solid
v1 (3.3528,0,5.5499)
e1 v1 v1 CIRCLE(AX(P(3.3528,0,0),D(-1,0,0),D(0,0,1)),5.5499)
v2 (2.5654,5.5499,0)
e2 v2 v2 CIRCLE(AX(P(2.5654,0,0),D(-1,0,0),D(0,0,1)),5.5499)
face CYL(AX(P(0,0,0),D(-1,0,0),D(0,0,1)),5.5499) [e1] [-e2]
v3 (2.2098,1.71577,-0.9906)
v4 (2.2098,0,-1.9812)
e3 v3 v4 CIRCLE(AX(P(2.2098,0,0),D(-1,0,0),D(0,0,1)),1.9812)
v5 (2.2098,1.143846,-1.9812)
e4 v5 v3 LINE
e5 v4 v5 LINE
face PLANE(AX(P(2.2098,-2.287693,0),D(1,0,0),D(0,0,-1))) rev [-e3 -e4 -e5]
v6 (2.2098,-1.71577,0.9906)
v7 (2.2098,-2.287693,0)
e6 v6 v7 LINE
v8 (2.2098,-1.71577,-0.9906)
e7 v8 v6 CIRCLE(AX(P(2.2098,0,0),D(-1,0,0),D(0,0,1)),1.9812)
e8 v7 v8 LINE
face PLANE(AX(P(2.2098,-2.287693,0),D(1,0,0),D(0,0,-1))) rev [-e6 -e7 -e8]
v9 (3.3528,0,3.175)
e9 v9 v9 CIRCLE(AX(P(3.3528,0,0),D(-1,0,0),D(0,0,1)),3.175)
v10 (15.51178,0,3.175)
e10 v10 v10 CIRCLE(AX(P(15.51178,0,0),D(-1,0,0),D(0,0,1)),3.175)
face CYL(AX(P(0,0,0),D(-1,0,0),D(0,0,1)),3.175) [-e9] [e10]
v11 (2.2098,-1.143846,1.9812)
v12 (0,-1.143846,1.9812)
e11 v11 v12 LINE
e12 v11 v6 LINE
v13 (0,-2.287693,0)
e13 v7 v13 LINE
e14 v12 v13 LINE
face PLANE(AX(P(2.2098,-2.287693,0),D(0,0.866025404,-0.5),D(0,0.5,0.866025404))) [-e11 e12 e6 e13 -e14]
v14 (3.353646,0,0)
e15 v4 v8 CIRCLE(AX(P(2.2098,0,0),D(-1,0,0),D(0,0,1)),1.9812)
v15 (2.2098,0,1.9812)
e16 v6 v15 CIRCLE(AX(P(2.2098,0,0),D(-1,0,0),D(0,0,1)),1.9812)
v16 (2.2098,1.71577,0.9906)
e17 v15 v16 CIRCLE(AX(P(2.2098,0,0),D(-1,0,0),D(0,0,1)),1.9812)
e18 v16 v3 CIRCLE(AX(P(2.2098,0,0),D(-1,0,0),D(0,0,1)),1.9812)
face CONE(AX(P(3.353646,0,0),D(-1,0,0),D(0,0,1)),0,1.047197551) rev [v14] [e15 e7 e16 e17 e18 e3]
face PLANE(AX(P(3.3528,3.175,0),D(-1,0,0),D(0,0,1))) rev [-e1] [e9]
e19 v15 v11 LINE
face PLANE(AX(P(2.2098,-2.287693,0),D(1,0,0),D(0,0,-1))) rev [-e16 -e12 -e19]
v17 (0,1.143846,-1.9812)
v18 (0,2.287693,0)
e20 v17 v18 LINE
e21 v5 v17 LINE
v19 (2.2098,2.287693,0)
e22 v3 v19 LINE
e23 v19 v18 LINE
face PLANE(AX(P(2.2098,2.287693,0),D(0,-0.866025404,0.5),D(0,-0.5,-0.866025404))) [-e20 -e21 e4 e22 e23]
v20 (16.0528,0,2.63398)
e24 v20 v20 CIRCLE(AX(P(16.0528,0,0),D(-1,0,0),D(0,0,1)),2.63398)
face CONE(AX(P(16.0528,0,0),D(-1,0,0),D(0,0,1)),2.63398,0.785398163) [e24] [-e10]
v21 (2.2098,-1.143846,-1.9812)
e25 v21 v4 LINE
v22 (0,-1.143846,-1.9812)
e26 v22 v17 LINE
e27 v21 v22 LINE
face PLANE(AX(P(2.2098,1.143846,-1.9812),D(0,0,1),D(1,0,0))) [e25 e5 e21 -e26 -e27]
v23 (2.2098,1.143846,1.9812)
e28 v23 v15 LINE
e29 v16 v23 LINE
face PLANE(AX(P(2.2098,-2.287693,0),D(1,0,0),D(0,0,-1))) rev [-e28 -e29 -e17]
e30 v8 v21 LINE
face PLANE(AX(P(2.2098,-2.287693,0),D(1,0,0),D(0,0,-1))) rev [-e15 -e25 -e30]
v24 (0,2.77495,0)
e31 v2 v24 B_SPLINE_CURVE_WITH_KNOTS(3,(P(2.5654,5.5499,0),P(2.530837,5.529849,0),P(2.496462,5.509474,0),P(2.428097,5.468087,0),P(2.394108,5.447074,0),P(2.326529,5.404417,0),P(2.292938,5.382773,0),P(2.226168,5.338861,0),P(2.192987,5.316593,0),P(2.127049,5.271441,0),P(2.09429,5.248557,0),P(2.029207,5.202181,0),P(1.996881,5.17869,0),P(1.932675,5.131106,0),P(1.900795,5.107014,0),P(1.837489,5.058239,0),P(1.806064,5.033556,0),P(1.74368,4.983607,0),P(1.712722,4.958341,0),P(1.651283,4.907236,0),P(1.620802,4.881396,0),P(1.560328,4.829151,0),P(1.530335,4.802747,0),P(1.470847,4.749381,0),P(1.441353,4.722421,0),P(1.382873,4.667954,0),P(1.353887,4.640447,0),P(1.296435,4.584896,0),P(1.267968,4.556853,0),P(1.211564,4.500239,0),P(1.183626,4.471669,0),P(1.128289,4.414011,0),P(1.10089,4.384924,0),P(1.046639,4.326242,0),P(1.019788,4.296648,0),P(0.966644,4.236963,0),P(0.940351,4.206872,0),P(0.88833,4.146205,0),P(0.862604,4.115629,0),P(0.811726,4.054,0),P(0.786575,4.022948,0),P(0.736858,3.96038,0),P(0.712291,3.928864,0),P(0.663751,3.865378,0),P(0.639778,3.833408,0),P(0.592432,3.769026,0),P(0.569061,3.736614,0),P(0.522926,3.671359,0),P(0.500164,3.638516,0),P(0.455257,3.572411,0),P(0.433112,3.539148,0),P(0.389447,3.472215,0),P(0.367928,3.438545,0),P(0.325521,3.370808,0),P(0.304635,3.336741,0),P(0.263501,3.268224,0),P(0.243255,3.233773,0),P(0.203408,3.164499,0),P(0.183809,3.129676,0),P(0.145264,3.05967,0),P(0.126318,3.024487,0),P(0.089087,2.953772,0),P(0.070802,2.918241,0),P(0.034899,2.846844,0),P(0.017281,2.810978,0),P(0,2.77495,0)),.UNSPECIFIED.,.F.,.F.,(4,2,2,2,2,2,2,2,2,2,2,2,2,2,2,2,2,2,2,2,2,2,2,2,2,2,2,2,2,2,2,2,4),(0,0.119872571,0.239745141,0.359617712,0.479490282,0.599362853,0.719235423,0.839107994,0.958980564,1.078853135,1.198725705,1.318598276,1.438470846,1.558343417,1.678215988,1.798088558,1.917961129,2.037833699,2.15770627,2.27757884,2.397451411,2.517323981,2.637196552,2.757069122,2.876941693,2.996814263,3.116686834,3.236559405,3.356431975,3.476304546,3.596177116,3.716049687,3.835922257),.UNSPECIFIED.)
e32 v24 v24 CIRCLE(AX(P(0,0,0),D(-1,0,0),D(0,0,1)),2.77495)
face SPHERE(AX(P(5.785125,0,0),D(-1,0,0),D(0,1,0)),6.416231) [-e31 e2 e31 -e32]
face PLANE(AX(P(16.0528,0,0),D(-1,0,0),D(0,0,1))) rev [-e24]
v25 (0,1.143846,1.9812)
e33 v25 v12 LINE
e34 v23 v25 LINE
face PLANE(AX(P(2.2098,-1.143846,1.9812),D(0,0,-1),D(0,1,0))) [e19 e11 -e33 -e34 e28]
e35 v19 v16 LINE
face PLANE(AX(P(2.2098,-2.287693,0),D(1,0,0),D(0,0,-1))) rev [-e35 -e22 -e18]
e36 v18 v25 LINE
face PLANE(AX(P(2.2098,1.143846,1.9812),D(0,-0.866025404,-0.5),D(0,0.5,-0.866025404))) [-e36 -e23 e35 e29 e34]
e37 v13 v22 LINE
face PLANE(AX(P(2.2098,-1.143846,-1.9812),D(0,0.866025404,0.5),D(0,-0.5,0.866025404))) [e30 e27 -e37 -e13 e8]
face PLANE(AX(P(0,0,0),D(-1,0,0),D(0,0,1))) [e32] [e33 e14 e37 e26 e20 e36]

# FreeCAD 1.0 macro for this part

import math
import FreeCAD as App
import Part
import Sketcher
Q = App.Units.Quantity

doc = App.newDocument("Part")
params = doc.addObject("Spreadsheet::Sheet", "Params")
for row, (alias, value) in enumerate([
    ("sketch1_width", "0.031 in"),
    ("sketch1_width2", "0.632 in"),
    ("revolution_angle", "360 deg"),
    ("sketch2_width", "0.087 in"),
    ("sketch2_height", "0.078 in"),
    ("groove_angle", "360 deg"),
    ("pocket1_length", "0.087 in"),
], start=1):
    params.set(f"A{row}", alias)
    params.set(f"B{row}", "=" + value)
    params.setAlias(f"B{row}", alias)

body = doc.addObject("PartDesign::Body", "Body")

sketch1 = doc.addObject("Sketcher::SketchObject", "Sketch")
body.addObject(sketch1)
sketch1.AttachmentSupport = (doc.XY_Plane, [""])
sketch1.MapMode = "FlatFace"
sketch1.addGeometry(Part.LineSegment(App.Vector(16.1, 0, 0), App.Vector(16.1, 2.6, 0)), False)
sketch1.addGeometry(Part.LineSegment(App.Vector(16.1, 2.6, 0), App.Vector(15.5, 3.2, 0)), False)
sketch1.addGeometry(Part.LineSegment(App.Vector(15.5, 3.2, 0), App.Vector(3.4, 3.2, 0)), False)
sketch1.addGeometry(Part.LineSegment(App.Vector(3.4, 3.2, 0), App.Vector(3.4, 5.5, 0)), False)
sketch1.addGeometry(Part.LineSegment(App.Vector(3.4, 5.5, 0), App.Vector(2.6, 5.5, 0)), False)
sketch1.addGeometry(Part.ArcOfCircle(Part.Circle(App.Vector(5.8, 0, 0), App.Vector(0, 0, 1), 6.4), math.radians(120), math.radians(154)), False)
sketch1.addGeometry(Part.LineSegment(App.Vector(0, 2.8, 0), App.Vector(0, 0, 0)), False)
sketch1.addGeometry(Part.LineSegment(App.Vector(0, 0, 0), App.Vector(16.1, 0, 0)), False)
sketch1.addConstraint(Sketcher.Constraint("Coincident", 0, 2, 1, 1))
sketch1.addConstraint(Sketcher.Constraint("Coincident", 1, 2, 2, 1))
sketch1.addConstraint(Sketcher.Constraint("Coincident", 2, 2, 3, 1))
sketch1.addConstraint(Sketcher.Constraint("Coincident", 3, 2, 4, 1))
sketch1.addConstraint(Sketcher.Constraint("Coincident", 4, 2, 5, 1))
sketch1.addConstraint(Sketcher.Constraint("Coincident", 5, 2, 6, 1))
sketch1.addConstraint(Sketcher.Constraint("Coincident", 6, 2, 7, 1))
sketch1.addConstraint(Sketcher.Constraint("Coincident", 7, 2, 0, 1))
sketch1.addConstraint(Sketcher.Constraint("Vertical", 0))
sketch1.addConstraint(Sketcher.Constraint("Horizontal", 2))
sketch1.addConstraint(Sketcher.Constraint("Vertical", 3))
sketch1.addConstraint(Sketcher.Constraint("Horizontal", 4))
sketch1.addConstraint(Sketcher.Constraint("Vertical", 6))
sketch1.addConstraint(Sketcher.Constraint("Horizontal", 7))
sketch1.addConstraint(Sketcher.Constraint("Coincident", 6, 2, -1, 1))
sketch1.addConstraint(Sketcher.Constraint("PointOnObject", 5, 3, -1))
sketch1.addConstraint(Sketcher.Constraint("Angle", 1, Q("135 deg")))
sketch1.addConstraint(Sketcher.Constraint("DistanceX", 2, 2, 0, 2, Q("0.5 in")))
sketch1.addConstraint(Sketcher.Constraint("DistanceX", 4, 2, 4, 1, Q("0.031 in")))
sketch1.addConstraint(Sketcher.Constraint("DistanceX", 7, 1, 7, 2, Q("0.632 in")))
sketch1.addConstraint(Sketcher.Constraint("DistanceX", 2, 2, 2, 1, Q("0.4787 in")))
sketch1.addConstraint(Sketcher.Constraint("DistanceY", 0, 1, 0, 2, Q("0.1037 in")))
sketch1.addConstraint(Sketcher.Constraint("DistanceY", 3, 1, 3, 2, Q("0.0935 in")))
sketch1.addConstraint(Sketcher.Constraint("Radius", 5, Q("6.416231 mm")))
sketch1.setExpression("Constraints[18]", "Params.sketch1_width")
sketch1.setExpression("Constraints[19]", "Params.sketch1_width2")
revolution = doc.addObject("PartDesign::Revolution", "Revolution")
body.addObject(revolution)
revolution.Profile = sketch1
revolution.ReferenceAxis = (sketch1, ["H_Axis"])
revolution.setExpression("Angle", "Params.revolution_angle")

sketch2 = doc.addObject("Sketcher::SketchObject", "Sketch001")
body.addObject(sketch2)
sketch2.AttachmentSupport = (doc.XY_Plane, [""])
sketch2.MapMode = "FlatFace"
sketch2.addGeometry(Part.LineSegment(App.Vector(2.2, 2, 0), App.Vector(0, 2, 0)), False)
sketch2.addGeometry(Part.LineSegment(App.Vector(0, 2, 0), App.Vector(0, 0, 0)), False)
sketch2.addGeometry(Part.LineSegment(App.Vector(0, 0, 0), App.Vector(3.4, 0, 0)), False)
sketch2.addGeometry(Part.LineSegment(App.Vector(3.4, 0, 0), App.Vector(2.2, 2, 0)), False)
sketch2.addConstraint(Sketcher.Constraint("Coincident", 0, 2, 1, 1))
sketch2.addConstraint(Sketcher.Constraint("Coincident", 1, 2, 2, 1))
sketch2.addConstraint(Sketcher.Constraint("Coincident", 2, 2, 3, 1))
sketch2.addConstraint(Sketcher.Constraint("Coincident", 3, 2, 0, 1))
sketch2.addConstraint(Sketcher.Constraint("Horizontal", 0))
sketch2.addConstraint(Sketcher.Constraint("Vertical", 1))
sketch2.addConstraint(Sketcher.Constraint("Horizontal", 2))
sketch2.addConstraint(Sketcher.Constraint("Coincident", 1, 2, -1, 1))
sketch2.addConstraint(Sketcher.Constraint("Angle", 3, Q("120 deg")))
sketch2.addConstraint(Sketcher.Constraint("DistanceX", 0, 2, 0, 1, Q("0.087 in")))
sketch2.addConstraint(Sketcher.Constraint("DistanceY", 1, 2, 1, 1, Q("0.078 in")))
sketch2.setExpression("Constraints[9]", "Params.sketch2_width")
sketch2.setExpression("Constraints[10]", "Params.sketch2_height")
groove = doc.addObject("PartDesign::Groove", "Groove")
body.addObject(groove)
groove.Profile = sketch2
groove.ReferenceAxis = (sketch2, ["H_Axis"])
groove.setExpression("Angle", "Params.groove_angle")

sketch3 = doc.addObject("Sketcher::SketchObject", "Sketch002")
body.addObject(sketch3)
sketch3.AttachmentSupport = (doc.YZ_Plane, [""])
sketch3.MapMode = "FlatFace"
sketch3.addGeometry(Part.LineSegment(App.Vector(1.1, 2, 0), App.Vector(-1.1, 2, 0)), False)
sketch3.addGeometry(Part.LineSegment(App.Vector(-1.1, 2, 0), App.Vector(-2.3, 0, 0)), False)
sketch3.addGeometry(Part.LineSegment(App.Vector(-2.3, 0, 0), App.Vector(-1.1, -2, 0)), False)
sketch3.addGeometry(Part.LineSegment(App.Vector(-1.1, -2, 0), App.Vector(1.1, -2, 0)), False)
sketch3.addGeometry(Part.LineSegment(App.Vector(1.1, -2, 0), App.Vector(2.3, 0, 0)), False)
sketch3.addGeometry(Part.LineSegment(App.Vector(2.3, 0, 0), App.Vector(1.1, 2, 0)), False)
sketch3.addConstraint(Sketcher.Constraint("Coincident", 0, 2, 1, 1))
sketch3.addConstraint(Sketcher.Constraint("Coincident", 1, 2, 2, 1))
sketch3.addConstraint(Sketcher.Constraint("Coincident", 2, 2, 3, 1))
sketch3.addConstraint(Sketcher.Constraint("Coincident", 3, 2, 4, 1))
sketch3.addConstraint(Sketcher.Constraint("Coincident", 4, 2, 5, 1))
sketch3.addConstraint(Sketcher.Constraint("Coincident", 5, 2, 0, 1))
sketch3.addConstraint(Sketcher.Constraint("Horizontal", 0))
sketch3.addConstraint(Sketcher.Constraint("Horizontal", 3))
sketch3.addConstraint(Sketcher.Constraint("Symmetric", 0, 2, 3, 2, -1, 1))
sketch3.addConstraint(Sketcher.Constraint("Symmetric", 1, 2, 4, 2, -1, 1))
sketch3.addConstraint(Sketcher.Constraint("PointOnObject", 1, 2, -1))
sketch3.addConstraint(Sketcher.Constraint("Parallel", 2, 5))
sketch3.addConstraint(Sketcher.Constraint("Vertical", 0, 2, 2, 2))
sketch3.addConstraint(Sketcher.Constraint("Angle", 1, Q("-120 deg")))
sketch3.addConstraint(Sketcher.Constraint("DistanceY", -1, 1, 0, 2, Q("0.078 in")))
sketch3.addConstraint(Sketcher.Constraint("DistanceX", 1, 2, 3, 2, Q("0.1351 in")))
pocket1 = doc.addObject("PartDesign::Pocket", "Pocket")
body.addObject(pocket1)
pocket1.Profile = sketch3
pocket1.setExpression("Length", "Params.pocket1_length")
pocket1.Reversed = True

doc.recompute()
